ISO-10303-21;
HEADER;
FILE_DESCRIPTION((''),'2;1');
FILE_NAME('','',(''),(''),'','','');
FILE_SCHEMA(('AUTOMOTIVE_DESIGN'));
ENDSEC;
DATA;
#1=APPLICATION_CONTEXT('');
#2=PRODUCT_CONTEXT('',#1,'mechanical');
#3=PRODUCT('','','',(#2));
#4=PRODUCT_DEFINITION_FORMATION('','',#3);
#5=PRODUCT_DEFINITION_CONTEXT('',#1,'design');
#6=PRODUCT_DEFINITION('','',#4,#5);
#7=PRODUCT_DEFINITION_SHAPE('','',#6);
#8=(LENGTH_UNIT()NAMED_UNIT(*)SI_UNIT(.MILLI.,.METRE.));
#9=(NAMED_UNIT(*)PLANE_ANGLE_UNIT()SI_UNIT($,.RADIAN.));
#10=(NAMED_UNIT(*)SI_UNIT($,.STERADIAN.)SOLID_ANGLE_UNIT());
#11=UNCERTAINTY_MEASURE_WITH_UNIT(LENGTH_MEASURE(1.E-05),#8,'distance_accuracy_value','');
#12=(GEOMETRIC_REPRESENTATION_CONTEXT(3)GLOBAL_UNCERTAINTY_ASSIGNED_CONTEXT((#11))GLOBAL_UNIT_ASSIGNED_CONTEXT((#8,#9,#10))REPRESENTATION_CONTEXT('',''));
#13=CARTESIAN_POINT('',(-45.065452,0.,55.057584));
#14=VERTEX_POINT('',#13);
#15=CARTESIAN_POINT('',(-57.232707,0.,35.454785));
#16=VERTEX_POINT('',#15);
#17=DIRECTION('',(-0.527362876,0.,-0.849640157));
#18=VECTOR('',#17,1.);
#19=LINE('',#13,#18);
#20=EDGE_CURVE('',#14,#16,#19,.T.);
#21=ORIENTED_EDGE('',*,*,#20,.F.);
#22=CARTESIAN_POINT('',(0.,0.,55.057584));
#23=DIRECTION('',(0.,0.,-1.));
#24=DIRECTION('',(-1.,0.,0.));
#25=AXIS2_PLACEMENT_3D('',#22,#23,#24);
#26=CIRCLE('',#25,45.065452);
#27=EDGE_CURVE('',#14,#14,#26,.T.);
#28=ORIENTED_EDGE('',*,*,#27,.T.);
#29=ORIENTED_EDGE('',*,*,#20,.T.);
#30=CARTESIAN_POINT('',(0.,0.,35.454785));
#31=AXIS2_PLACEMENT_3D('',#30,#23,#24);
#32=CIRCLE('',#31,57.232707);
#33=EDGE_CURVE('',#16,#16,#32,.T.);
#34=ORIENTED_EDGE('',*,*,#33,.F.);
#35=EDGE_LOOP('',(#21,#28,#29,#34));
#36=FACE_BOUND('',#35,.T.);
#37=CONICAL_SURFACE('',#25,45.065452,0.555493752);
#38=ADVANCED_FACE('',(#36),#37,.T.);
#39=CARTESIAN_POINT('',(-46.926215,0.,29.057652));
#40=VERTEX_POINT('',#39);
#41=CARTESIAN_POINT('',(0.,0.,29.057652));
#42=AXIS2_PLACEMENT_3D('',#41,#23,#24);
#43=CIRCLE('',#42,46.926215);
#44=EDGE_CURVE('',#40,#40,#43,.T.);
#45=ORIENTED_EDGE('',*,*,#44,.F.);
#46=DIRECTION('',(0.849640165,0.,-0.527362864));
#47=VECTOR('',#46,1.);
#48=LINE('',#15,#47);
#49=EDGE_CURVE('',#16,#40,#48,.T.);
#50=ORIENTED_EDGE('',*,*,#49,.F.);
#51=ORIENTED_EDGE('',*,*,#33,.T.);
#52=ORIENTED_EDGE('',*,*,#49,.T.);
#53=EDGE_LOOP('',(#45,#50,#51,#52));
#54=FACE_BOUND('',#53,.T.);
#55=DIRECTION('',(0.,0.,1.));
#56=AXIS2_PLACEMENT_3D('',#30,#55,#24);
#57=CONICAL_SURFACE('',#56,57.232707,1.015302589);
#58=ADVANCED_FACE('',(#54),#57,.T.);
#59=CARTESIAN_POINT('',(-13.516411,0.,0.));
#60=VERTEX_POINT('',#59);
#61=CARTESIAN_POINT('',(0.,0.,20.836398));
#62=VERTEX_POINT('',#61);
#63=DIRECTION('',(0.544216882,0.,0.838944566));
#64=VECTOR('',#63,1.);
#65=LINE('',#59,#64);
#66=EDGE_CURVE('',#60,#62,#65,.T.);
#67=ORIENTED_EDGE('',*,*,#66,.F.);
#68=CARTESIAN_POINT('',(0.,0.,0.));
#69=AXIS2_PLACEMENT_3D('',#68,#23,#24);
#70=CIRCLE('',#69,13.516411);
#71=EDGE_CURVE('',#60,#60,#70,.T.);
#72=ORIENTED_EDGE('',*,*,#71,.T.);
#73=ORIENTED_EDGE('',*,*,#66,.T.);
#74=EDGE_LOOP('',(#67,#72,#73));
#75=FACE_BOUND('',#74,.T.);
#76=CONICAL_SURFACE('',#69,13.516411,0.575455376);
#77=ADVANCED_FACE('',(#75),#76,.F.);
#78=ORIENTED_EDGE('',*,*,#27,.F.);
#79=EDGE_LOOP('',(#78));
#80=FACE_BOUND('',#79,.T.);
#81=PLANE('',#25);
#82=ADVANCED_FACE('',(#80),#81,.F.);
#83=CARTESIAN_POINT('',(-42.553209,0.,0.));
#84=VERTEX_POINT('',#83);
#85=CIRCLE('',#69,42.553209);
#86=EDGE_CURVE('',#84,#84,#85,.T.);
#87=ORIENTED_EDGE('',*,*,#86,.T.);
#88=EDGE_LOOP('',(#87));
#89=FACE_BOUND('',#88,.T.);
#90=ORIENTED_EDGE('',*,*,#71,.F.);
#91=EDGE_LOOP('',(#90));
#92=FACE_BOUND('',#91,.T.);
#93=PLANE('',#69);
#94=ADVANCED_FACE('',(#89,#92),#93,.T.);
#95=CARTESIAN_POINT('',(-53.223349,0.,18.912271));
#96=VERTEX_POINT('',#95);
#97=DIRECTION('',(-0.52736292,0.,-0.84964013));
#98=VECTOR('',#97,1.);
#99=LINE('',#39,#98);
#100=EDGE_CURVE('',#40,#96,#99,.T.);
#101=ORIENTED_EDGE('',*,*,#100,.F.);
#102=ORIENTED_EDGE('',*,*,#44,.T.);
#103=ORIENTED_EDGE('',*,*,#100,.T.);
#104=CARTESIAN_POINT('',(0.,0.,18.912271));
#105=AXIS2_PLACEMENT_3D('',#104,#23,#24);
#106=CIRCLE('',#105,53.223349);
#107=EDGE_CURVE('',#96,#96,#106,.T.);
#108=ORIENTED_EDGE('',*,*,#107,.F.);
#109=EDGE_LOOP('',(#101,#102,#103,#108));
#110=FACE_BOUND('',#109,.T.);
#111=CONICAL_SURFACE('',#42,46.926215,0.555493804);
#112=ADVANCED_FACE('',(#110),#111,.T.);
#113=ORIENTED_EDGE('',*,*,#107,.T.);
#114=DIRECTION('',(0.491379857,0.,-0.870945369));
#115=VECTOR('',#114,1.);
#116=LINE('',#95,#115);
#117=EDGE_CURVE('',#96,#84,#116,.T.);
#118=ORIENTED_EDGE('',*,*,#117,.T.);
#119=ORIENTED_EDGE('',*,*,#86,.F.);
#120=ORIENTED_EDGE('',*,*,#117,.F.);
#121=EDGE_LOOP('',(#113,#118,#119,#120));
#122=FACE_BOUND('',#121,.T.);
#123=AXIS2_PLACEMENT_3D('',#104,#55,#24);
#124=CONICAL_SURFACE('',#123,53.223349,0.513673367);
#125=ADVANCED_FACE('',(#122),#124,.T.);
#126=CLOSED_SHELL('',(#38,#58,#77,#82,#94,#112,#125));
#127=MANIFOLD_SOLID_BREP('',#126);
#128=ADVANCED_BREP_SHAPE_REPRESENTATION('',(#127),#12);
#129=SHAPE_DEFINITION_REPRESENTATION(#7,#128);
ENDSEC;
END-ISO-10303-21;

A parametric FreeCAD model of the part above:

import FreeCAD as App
import Part
import Sketcher


def add_polygon(sketch, points):
    """Adds a closed chain of lines whose ends are joined by coincident constraints."""
    first, n = sketch.GeometryCount, len(points)
    for a, b in zip(points, points[1:] + points[:1]):
        sketch.addGeometry(Part.LineSegment(App.Vector(*a, 0), App.Vector(*b, 0)), False)
    for i in range(n):
        sketch.addConstraint(Sketcher.Constraint("Coincident", first + i, 2, first + (i + 1) % n, 1))

doc = App.newDocument("Part")
body = doc.addObject("PartDesign::Body", "Body")

# Sketch on XZ plane
sketch1 = doc.addObject("Sketcher::SketchObject", "Sketch")
body.addObject(sketch1)
sketch1.AttachmentSupport = (doc.XZ_Plane, [""])
sketch1.MapMode = "FlatFace"
add_polygon(sketch1, [(-14, 0), (0, 21), (0, 55), (-45, 55), (-57, 35), (-47, 29), (-53, 19), (-43, 0)])  # lines 0-7
sketch1.addConstraint([
    Sketcher.Constraint("Vertical", 1),
    Sketcher.Constraint("Horizontal", 2),
    Sketcher.Constraint("Horizontal", 7),
    Sketcher.Constraint("PointOnObject", 0, 2, -2),
    Sketcher.Constraint("PointOnObject", 6, 2, -1),
    Sketcher.Constraint("Perpendicular", 3, 4),
    Sketcher.Constraint("Perpendicular", 4, 5),
    Sketcher.Constraint("DistanceX", 7, 1, 7, 2, 29.036798),
    Sketcher.Constraint("DistanceY", 3, 2, 2, 2, 19.602799),
    Sketcher.Constraint("Distance", 0, 24.836442),
    Sketcher.Constraint("Distance", 4, 12.13042),
    Sketcher.Constraint("DistanceX", 2, 2, 2, 1, 45.065452),
    Sketcher.Constraint("DistanceY", 1, 1, 1, 2, 34.221186),
    Sketcher.Constraint("DistanceX", 5, 2, -1, 1, 53.223349),
    Sketcher.Constraint("DistanceY", -1, 1, 5, 2, 18.912271),
    Sketcher.Constraint("DistanceX", 6, 2, -1, 1, 42.553209),
])
revolution = doc.addObject("PartDesign::Revolution", "Revolution")
body.addObject(revolution)
revolution.Profile = sketch1
revolution.ReferenceAxis = (sketch1, ["V_Axis"])
revolution.Angle = 360

# Sketch on XY plane
sketch2 = doc.addObject("Sketcher::SketchObject", "Sketch001")
body.addObject(sketch2)
sketch2.AttachmentSupport = (doc.XY_Plane, [""])
sketch2.MapMode = "FlatFace"
sketch2.AttachmentOffset = App.Placement(App.Vector(0, 0, 55.057584), App.Rotation())
add_polygon(sketch2, [(-21, 36), (-41, -1), (-20, -36), (21, -36), (41, 1), (20, 36)])  # lines 0-5
sketch2.addConstraint([
    Sketcher.Constraint("Symmetric", 0, 2, 3, 2, -1, 1),
    Sketcher.Constraint("Symmetric", 1, 2, 4, 2, -1, 1),
    Sketcher.Constraint("Symmetric", 2, 2, 5, 2, -1, 1),
    Sketcher.Constraint("Equal", 0, 1),
    Sketcher.Constraint("Equal", 1, 2),
    Sketcher.Constraint("Distance", 0, 41.49299),
    Sketcher.Constraint("DistanceY", 2, 2, -1, 1, 35.578321),
    Sketcher.Constraint("DistanceY", 1, 2, 0, 2, 35.578321),
    Sketcher.Constraint("DistanceX", 1, 2, 3, 2, 61.623461),
])
pad1 = doc.addObject("PartDesign::Pad", "Pad")
body.addObject(pad1)
pad1.Profile = sketch2
pad1.Length = 31.425066
pad1.Reversed = True

doc.recompute()
